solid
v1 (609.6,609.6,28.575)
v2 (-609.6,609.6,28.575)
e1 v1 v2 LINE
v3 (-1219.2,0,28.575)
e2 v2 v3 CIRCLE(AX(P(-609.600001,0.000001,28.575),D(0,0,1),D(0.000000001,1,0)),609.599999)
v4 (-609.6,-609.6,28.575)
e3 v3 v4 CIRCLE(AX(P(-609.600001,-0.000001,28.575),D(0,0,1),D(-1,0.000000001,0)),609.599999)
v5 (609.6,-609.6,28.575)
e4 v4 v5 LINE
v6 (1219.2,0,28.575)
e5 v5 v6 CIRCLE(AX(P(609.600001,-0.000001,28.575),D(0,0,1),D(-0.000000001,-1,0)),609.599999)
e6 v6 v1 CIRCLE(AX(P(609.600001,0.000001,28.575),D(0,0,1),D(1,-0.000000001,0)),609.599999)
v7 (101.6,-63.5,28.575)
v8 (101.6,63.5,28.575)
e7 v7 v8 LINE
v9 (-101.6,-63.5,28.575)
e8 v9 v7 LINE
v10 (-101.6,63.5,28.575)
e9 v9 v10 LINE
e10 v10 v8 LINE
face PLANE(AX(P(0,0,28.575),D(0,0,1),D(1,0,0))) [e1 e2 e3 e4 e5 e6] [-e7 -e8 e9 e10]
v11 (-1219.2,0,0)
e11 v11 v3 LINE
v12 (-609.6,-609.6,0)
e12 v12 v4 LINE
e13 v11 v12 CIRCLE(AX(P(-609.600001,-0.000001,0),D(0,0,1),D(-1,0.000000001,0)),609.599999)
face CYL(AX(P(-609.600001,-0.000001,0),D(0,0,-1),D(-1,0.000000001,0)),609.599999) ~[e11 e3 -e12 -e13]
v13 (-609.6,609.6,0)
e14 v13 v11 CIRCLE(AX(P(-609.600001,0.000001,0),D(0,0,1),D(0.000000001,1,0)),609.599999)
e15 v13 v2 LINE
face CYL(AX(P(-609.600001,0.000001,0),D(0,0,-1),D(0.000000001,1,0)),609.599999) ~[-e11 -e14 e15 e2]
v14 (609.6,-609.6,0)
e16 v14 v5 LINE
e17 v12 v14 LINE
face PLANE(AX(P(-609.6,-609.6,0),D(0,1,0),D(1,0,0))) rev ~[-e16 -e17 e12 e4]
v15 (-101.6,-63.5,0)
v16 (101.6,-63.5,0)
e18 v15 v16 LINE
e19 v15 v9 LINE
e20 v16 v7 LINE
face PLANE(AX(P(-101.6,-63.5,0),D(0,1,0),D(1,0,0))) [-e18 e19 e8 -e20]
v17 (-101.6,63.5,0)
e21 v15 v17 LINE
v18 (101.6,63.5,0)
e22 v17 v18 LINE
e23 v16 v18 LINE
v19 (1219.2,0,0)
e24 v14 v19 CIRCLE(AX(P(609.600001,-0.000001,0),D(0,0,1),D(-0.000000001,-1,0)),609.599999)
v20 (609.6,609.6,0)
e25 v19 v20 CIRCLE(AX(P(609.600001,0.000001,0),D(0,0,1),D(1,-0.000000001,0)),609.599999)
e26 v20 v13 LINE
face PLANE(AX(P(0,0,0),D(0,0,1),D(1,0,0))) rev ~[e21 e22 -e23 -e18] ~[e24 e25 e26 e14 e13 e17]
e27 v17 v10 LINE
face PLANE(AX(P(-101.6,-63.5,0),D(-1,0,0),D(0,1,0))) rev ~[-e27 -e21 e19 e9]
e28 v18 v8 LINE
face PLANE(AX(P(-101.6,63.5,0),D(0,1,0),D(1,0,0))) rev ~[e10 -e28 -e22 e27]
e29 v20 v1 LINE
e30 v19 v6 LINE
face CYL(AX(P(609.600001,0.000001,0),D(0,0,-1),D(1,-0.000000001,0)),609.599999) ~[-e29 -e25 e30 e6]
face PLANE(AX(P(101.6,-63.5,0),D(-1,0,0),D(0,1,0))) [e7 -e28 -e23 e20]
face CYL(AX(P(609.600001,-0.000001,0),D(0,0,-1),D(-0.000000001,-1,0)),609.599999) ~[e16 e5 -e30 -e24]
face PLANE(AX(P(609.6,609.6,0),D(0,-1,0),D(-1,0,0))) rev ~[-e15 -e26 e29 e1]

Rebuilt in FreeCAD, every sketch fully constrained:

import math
import FreeCAD as App
import Part
import Sketcher

V = App.Vector
Q = App.Units.Quantity

doc = App.newDocument("Part")
body = doc.addObject("PartDesign::Body", "Body")

sketch1 = body.newObject("Sketcher::SketchObject", "Sketch")
sketch1.AttachmentSupport = (doc.getObject("XY_Plane"), [""])
sketch1.MapMode = "FlatFace"
sketch1.addGeometry(Part.LineSegment(V(609.6, 609.6, 0), V(-609.6, 609.6, 0)), False)
sketch1.addGeometry(Part.ArcOfCircle(Part.Circle(V(-609.600001, 0.000001, 0), V(0, 0, 1), 609.599999), math.radians(90), math.radians(180)), False)
sketch1.addGeometry(Part.ArcOfCircle(Part.Circle(V(-609.600001, -0.000001, 0), V(0, 0, 1), 609.599999), math.radians(180), math.radians(270)), False)
sketch1.addGeometry(Part.LineSegment(V(-609.6, -609.6, 0), V(609.6, -609.6, 0)), False)
sketch1.addGeometry(Part.ArcOfCircle(Part.Circle(V(609.600001, -0.000001, 0), V(0, 0, 1), 609.599999), math.radians(-90), math.radians(0)), False)
sketch1.addGeometry(Part.ArcOfCircle(Part.Circle(V(609.600001, 0.000001, 0), V(0, 0, 1), 609.599999), math.radians(0), math.radians(90)), False)
sketch1.addGeometry(Part.LineSegment(V(101.6, -63.5, 0), V(-101.6, -63.5, 0)), False)
sketch1.addGeometry(Part.LineSegment(V(-101.6, -63.5, 0), V(-101.6, 63.5, 0)), False)
sketch1.addGeometry(Part.LineSegment(V(-101.6, 63.5, 0), V(101.6, 63.5, 0)), False)
sketch1.addGeometry(Part.LineSegment(V(101.6, 63.5, 0), V(101.6, -63.5, 0)), False)
sketch1.addConstraint(Sketcher.Constraint("Tangent", 0, 2, 1, 1))
sketch1.addConstraint(Sketcher.Constraint("Coincident", 1, 2, 2, 1))
sketch1.addConstraint(Sketcher.Constraint("Tangent", 2, 2, 3, 1))
sketch1.addConstraint(Sketcher.Constraint("Tangent", 3, 2, 4, 1))
sketch1.addConstraint(Sketcher.Constraint("Coincident", 4, 2, 5, 1))
sketch1.addConstraint(Sketcher.Constraint("Tangent", 5, 2, 0, 1))
sketch1.addConstraint(Sketcher.Constraint("Coincident", 6, 2, 7, 1))
sketch1.addConstraint(Sketcher.Constraint("Coincident", 7, 2, 8, 1))
sketch1.addConstraint(Sketcher.Constraint("Coincident", 8, 2, 9, 1))
sketch1.addConstraint(Sketcher.Constraint("Coincident", 9, 2, 6, 1))
sketch1.addConstraint(Sketcher.Constraint("Horizontal", 0))
sketch1.addConstraint(Sketcher.Constraint("Horizontal", 3))
sketch1.addConstraint(Sketcher.Constraint("Horizontal", 6))
sketch1.addConstraint(Sketcher.Constraint("Vertical", 7))
sketch1.addConstraint(Sketcher.Constraint("Horizontal", 8))
sketch1.addConstraint(Sketcher.Constraint("Vertical", 9))
sketch1.addConstraint(Sketcher.Constraint("Coincident", 2, 3, 1, 3))
sketch1.addConstraint(Sketcher.Constraint("Coincident", 5, 3, 4, 3))
sketch1.addConstraint(Sketcher.Constraint("Symmetric", 1, 3, 4, 3, -1, 1))
sketch1.addConstraint(Sketcher.Constraint("Symmetric", 6, 2, 8, 2, -1, 1))
sketch1.addConstraint(Sketcher.Constraint("PointOnObject", 1, 2, -1))
sketch1.addConstraint(Sketcher.Constraint("PointOnObject", 4, 2, -1))
sketch1.addConstraint(Sketcher.Constraint("Radius", 1, Q("24 in")))
sketch1.addConstraint(Sketcher.Constraint("DistanceX", 0, 2, 0, 1, Q("48 in")))
sketch1.addConstraint(Sketcher.Constraint("DistanceX", 6, 2, 6, 1, Q("8 in")))
sketch1.addConstraint(Sketcher.Constraint("DistanceY", 7, 1, 7, 2, Q("5 in")))
pad1 = body.newObject("PartDesign::Pad", "Pad")
pad1.Profile = sketch1
pad1.Length = Q("1.125 in")

doc.recompute()
